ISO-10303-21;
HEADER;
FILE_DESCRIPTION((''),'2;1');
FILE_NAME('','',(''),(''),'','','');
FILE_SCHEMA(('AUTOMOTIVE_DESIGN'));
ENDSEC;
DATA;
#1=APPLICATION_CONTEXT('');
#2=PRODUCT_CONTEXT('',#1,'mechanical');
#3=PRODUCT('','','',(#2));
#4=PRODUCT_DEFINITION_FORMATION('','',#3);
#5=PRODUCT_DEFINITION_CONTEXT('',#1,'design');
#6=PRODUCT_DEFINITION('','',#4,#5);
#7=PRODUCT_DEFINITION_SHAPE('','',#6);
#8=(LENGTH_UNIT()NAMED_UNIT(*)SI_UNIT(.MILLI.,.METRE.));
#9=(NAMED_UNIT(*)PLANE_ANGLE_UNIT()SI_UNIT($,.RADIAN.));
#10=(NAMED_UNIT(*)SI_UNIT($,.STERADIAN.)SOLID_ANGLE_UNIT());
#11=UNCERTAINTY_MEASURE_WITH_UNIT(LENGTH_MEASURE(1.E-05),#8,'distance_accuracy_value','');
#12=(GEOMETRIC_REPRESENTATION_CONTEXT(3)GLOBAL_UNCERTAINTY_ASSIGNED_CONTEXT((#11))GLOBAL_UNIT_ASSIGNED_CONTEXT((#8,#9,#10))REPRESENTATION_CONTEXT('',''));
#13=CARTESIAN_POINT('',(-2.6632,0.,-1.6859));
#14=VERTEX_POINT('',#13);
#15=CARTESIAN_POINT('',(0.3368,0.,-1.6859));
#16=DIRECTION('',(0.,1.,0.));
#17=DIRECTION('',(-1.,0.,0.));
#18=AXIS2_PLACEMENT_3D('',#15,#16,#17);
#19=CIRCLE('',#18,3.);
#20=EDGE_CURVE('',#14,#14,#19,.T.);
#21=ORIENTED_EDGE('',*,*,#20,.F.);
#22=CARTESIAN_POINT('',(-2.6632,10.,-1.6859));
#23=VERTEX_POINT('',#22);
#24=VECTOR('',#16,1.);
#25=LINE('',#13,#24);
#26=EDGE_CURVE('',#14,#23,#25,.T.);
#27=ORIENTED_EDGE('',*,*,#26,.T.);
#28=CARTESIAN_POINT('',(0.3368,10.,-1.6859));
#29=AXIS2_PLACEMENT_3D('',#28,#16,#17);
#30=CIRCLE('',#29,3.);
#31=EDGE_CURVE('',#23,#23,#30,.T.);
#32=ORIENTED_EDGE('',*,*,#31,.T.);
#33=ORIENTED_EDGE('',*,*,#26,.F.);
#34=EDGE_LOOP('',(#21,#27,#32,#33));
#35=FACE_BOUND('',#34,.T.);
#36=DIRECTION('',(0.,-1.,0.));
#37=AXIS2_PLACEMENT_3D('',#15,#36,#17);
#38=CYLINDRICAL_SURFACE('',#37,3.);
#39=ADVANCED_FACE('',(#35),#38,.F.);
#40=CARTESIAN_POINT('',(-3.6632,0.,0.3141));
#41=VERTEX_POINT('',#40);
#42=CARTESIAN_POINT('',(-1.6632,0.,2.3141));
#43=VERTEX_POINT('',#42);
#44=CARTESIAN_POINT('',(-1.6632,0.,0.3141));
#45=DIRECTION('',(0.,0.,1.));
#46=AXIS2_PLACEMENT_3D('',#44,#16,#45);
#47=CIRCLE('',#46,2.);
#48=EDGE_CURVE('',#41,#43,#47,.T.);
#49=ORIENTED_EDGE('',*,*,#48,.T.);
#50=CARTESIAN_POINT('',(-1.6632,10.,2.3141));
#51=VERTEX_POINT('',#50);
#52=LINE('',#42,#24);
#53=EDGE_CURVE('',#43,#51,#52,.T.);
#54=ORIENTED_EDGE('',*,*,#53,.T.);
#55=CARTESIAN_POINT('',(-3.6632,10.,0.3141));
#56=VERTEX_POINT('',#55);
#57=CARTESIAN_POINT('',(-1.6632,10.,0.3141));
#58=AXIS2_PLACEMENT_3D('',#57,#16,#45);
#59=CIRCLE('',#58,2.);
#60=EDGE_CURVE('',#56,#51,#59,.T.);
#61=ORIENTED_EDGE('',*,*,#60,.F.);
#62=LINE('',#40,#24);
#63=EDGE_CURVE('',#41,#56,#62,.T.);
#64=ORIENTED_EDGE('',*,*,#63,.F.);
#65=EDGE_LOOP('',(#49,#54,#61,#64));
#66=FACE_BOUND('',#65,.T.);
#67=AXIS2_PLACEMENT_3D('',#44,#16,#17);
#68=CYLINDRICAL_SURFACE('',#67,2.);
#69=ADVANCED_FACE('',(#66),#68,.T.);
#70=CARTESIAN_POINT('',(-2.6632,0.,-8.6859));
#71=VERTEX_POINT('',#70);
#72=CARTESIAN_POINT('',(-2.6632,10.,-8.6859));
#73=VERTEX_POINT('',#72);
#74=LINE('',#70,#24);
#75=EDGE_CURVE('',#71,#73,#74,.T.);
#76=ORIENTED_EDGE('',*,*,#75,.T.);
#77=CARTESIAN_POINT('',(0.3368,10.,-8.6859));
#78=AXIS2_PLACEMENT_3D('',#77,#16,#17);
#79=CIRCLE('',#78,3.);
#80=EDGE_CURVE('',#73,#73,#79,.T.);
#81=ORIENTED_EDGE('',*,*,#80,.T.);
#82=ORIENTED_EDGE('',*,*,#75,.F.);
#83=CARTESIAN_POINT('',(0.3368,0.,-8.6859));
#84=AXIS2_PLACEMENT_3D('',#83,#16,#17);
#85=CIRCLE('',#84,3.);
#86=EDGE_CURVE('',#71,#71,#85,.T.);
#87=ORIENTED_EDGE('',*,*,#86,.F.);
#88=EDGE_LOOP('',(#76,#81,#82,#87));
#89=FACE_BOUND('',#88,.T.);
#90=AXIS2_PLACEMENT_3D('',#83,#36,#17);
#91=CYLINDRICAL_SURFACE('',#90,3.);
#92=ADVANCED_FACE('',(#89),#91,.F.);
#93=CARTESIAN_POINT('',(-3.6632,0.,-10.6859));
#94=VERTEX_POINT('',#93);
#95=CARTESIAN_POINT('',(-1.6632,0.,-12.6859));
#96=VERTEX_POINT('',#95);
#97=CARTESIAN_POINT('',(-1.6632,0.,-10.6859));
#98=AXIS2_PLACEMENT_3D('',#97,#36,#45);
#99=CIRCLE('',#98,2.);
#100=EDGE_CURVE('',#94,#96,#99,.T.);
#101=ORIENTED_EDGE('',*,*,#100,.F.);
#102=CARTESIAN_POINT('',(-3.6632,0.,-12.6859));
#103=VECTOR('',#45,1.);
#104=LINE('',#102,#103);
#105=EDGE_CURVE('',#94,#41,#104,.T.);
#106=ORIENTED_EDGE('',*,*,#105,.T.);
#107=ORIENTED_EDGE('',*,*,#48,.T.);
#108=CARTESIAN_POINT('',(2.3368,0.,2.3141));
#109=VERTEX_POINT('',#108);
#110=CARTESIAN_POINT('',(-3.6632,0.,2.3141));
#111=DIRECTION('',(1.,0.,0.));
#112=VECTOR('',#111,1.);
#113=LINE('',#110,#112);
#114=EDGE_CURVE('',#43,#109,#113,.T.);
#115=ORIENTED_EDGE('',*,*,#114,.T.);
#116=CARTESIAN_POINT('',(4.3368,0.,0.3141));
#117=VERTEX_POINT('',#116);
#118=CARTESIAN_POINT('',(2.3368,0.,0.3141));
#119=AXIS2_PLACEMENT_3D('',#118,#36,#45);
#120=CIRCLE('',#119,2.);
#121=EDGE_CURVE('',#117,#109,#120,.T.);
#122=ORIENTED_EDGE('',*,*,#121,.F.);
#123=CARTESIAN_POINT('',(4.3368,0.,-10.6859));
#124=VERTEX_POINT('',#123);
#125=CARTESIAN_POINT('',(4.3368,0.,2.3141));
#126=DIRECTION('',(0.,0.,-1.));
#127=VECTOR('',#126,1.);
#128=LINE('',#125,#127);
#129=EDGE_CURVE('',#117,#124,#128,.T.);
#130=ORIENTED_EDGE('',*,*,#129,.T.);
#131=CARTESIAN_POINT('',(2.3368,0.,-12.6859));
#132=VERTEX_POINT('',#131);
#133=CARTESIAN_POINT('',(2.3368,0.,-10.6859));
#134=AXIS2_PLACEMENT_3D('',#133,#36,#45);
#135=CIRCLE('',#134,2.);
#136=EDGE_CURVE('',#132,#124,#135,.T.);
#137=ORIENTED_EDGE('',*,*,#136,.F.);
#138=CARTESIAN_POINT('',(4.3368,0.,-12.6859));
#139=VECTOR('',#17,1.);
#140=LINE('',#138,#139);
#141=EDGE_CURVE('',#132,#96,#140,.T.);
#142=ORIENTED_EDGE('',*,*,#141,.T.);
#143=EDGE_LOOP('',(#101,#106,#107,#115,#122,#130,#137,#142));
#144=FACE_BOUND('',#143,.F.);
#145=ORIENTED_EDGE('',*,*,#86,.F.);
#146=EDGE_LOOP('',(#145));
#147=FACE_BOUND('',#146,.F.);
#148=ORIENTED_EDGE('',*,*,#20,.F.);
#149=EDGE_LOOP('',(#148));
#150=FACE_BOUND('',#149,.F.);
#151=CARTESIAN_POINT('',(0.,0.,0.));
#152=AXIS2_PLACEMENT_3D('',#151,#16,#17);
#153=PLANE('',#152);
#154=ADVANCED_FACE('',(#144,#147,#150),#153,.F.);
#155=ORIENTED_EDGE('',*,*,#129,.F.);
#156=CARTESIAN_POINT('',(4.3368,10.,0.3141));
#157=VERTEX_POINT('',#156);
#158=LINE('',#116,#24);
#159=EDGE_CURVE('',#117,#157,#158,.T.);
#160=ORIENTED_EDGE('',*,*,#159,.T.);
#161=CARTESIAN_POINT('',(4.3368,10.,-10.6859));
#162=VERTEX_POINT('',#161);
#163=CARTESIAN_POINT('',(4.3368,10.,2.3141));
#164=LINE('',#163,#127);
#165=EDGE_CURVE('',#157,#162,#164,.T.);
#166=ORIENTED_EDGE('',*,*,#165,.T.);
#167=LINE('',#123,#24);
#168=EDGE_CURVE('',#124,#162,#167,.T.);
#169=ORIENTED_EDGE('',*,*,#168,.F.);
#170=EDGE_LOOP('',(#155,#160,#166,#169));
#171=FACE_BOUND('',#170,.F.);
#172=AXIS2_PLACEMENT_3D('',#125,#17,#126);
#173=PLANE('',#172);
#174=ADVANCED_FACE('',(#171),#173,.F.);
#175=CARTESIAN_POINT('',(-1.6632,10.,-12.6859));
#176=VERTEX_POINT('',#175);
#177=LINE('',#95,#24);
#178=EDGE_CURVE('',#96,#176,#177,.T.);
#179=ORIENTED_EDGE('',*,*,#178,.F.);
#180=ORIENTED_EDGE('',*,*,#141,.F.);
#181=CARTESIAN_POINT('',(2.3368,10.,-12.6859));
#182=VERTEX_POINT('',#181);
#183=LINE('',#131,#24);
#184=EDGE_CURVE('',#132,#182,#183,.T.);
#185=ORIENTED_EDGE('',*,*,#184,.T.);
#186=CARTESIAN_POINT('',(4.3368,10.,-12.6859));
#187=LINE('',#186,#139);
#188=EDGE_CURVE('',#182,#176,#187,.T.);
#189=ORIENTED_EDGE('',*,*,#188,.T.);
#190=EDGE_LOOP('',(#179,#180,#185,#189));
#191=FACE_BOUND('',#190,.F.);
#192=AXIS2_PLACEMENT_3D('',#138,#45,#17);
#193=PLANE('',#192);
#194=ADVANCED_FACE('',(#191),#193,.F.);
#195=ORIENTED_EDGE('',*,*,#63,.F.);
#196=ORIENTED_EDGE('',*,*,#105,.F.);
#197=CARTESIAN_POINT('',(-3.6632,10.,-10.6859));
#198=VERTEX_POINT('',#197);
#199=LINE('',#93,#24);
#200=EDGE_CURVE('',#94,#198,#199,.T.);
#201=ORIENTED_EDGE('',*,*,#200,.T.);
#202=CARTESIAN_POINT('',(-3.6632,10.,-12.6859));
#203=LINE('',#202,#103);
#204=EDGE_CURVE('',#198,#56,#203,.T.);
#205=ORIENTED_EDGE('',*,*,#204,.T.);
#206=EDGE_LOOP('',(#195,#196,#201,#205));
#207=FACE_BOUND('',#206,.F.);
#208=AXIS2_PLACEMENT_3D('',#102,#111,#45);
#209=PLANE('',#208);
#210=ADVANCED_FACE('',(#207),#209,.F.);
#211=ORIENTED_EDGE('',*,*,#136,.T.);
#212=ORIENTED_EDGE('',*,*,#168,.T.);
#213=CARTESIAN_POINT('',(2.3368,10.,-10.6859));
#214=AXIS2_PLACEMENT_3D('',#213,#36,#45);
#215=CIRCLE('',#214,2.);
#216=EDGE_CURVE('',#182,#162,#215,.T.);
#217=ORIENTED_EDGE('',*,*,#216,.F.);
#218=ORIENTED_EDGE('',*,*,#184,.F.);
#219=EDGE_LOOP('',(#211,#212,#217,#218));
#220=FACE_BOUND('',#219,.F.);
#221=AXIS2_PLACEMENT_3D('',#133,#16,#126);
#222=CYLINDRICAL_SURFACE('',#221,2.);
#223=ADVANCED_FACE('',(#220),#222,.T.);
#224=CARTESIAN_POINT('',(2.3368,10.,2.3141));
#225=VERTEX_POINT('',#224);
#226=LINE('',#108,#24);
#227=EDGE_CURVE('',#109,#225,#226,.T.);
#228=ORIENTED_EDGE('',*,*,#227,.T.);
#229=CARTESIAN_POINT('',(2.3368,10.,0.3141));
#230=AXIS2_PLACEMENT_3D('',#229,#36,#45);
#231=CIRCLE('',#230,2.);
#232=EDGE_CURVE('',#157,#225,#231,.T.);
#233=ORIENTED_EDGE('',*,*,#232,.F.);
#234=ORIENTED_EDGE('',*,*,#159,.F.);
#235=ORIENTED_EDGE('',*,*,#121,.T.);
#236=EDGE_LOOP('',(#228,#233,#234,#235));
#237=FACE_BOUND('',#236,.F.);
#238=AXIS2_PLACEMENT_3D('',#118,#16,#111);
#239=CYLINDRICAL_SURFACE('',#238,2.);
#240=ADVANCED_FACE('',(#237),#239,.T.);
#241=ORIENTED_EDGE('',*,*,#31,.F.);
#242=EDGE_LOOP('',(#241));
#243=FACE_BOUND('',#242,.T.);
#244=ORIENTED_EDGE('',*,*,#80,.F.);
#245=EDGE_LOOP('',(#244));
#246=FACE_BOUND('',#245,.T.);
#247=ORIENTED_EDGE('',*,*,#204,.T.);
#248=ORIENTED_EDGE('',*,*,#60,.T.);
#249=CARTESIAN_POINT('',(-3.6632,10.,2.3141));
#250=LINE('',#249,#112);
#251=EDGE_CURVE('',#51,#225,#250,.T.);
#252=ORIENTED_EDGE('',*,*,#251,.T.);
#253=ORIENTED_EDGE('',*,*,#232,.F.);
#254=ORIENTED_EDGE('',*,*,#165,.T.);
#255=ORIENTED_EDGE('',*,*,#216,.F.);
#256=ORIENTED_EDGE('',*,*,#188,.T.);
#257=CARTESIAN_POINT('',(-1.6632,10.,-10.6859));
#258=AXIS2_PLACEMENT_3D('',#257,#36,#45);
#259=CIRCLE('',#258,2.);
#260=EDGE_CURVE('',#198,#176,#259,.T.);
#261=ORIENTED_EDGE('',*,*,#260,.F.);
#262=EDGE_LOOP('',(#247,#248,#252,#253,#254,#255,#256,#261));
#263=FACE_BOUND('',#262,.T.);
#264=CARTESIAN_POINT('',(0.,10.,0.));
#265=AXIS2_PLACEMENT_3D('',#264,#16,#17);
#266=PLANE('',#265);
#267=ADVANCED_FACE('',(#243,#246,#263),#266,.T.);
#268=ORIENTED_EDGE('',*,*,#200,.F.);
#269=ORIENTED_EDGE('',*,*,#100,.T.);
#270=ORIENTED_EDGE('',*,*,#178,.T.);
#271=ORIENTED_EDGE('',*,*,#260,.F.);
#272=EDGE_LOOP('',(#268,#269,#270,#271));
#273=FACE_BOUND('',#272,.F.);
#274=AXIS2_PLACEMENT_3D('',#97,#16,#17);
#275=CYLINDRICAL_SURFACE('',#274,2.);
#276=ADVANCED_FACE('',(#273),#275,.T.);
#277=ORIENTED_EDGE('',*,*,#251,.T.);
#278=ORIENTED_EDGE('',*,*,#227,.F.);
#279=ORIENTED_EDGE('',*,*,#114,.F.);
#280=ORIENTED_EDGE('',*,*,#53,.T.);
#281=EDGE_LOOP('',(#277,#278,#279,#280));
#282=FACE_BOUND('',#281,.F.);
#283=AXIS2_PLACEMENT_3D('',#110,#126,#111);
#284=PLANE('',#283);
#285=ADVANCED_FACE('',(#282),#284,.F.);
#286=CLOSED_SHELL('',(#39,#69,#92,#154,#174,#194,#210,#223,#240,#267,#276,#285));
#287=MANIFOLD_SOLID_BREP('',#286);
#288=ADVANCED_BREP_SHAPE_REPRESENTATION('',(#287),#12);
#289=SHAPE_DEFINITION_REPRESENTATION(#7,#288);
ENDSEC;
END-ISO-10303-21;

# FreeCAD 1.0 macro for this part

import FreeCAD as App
import Part
import Sketcher
Q = App.Units.Quantity


def edges_at(feature, points):
    """Names of the edges that pass closest to the given points."""
    edges = feature.Shape.Edges
    near = lambda p: min(range(len(edges)), key=lambda i: edges[i].distToShape(Part.Vertex(*p))[0])
    return sorted({f"Edge{near(p) + 1}" for p in points})

doc = App.newDocument("Part")
params = doc.addObject("Spreadsheet::Sheet", "Params")
for row, (alias, value) in enumerate([
    ("sketch1_diameter", "6 mm"),
    ("sketch1_width", "8 mm"),
    ("sketch1_height", "15 mm"),
    ("pad1_length", "10 mm"),
    ("fillet_radius", "2 mm"),
], start=1):
    params.set(f"A{row}", alias)
    params.set(f"B{row}", "=" + value)
    params.setAlias(f"B{row}", alias)

body = doc.addObject("PartDesign::Body", "Body")

# Sketch on XZ plane
sketch1 = body.newObject("Sketcher::SketchObject", "Sketch")
sketch1.AttachmentSupport = (doc.getObject("XZ_Plane"), [""])
sketch1.MapMode = "FlatFace"
sketch1.addGeometry(Part.LineSegment(App.Vector(-3.7, -12.7, 0), App.Vector(-3.7, 2.3, 0)), False)
sketch1.addGeometry(Part.LineSegment(App.Vector(-3.7, 2.3, 0), App.Vector(4.3, 2.3, 0)), False)
sketch1.addGeometry(Part.LineSegment(App.Vector(4.3, 2.3, 0), App.Vector(4.3, -12.7, 0)), False)
sketch1.addGeometry(Part.LineSegment(App.Vector(4.3, -12.7, 0), App.Vector(-3.7, -12.7, 0)), False)
sketch1.addGeometry(Part.Circle(App.Vector(0.3, -8.7, 0), App.Vector(0, 0, 1), 3), False)
sketch1.addGeometry(Part.Circle(App.Vector(0.3, -1.7, 0), App.Vector(0, 0, 1), 3), False)
sketch1.addConstraint(Sketcher.Constraint("Coincident", 0, 2, 1, 1))
sketch1.addConstraint(Sketcher.Constraint("Coincident", 1, 2, 2, 1))
sketch1.addConstraint(Sketcher.Constraint("Coincident", 2, 2, 3, 1))
sketch1.addConstraint(Sketcher.Constraint("Coincident", 3, 2, 0, 1))
sketch1.addConstraint(Sketcher.Constraint("Vertical", 0))
sketch1.addConstraint(Sketcher.Constraint("Horizontal", 1))
sketch1.addConstraint(Sketcher.Constraint("Vertical", 2))
sketch1.addConstraint(Sketcher.Constraint("Horizontal", 3))
sketch1.addConstraint(Sketcher.Constraint("Equal", 4, 5))
sketch1.addConstraint(Sketcher.Constraint("Vertical", 4, 3, 5, 3))
sketch1.addConstraint(Sketcher.Constraint("Diameter", 4, Q("6 mm")))
sketch1.addConstraint(Sketcher.Constraint("DistanceX", 1, 1, 1, 2, Q("8 mm")))
sketch1.addConstraint(Sketcher.Constraint("DistanceY", 0, 1, 0, 2, Q("15 mm")))
sketch1.addConstraint(Sketcher.Constraint("DistanceY", 4, 3, 5, 3, Q("7 mm")))
sketch1.addConstraint(Sketcher.Constraint("DistanceX", 0, 2, 5, 3, Q("4 mm")))
sketch1.addConstraint(Sketcher.Constraint("DistanceY", 5, 3, 0, 2, Q("4 mm")))
sketch1.addConstraint(Sketcher.Constraint("DistanceY", 4, 3, -1, 1, Q("8.686 mm")))
sketch1.addConstraint(Sketcher.Constraint("DistanceX", -1, 1, 4, 3, Q("0.3368 mm")))
sketch1.setExpression("Constraints[10]", "Params.sketch1_diameter")
sketch1.setExpression("Constraints[11]", "Params.sketch1_width")
sketch1.setExpression("Constraints[12]", "Params.sketch1_height")
pad1 = body.newObject("PartDesign::Pad", "Pad")
pad1.Profile = sketch1
pad1.setExpression("Length", "Params.pad1_length")
pad1.Reversed = True
doc.recompute()

fillet = body.newObject("PartDesign::Fillet", "Fillet")
fillet.Base = (pad1, edges_at(pad1, [
    (4.337, 5, 2.314),
    (-3.663, 5, 2.314),
    (4.337, 5, -12.686),
    (-3.663, 5, -12.686),
]))
fillet.setExpression("Radius", "Params.fillet_radius")

doc.recompute()
